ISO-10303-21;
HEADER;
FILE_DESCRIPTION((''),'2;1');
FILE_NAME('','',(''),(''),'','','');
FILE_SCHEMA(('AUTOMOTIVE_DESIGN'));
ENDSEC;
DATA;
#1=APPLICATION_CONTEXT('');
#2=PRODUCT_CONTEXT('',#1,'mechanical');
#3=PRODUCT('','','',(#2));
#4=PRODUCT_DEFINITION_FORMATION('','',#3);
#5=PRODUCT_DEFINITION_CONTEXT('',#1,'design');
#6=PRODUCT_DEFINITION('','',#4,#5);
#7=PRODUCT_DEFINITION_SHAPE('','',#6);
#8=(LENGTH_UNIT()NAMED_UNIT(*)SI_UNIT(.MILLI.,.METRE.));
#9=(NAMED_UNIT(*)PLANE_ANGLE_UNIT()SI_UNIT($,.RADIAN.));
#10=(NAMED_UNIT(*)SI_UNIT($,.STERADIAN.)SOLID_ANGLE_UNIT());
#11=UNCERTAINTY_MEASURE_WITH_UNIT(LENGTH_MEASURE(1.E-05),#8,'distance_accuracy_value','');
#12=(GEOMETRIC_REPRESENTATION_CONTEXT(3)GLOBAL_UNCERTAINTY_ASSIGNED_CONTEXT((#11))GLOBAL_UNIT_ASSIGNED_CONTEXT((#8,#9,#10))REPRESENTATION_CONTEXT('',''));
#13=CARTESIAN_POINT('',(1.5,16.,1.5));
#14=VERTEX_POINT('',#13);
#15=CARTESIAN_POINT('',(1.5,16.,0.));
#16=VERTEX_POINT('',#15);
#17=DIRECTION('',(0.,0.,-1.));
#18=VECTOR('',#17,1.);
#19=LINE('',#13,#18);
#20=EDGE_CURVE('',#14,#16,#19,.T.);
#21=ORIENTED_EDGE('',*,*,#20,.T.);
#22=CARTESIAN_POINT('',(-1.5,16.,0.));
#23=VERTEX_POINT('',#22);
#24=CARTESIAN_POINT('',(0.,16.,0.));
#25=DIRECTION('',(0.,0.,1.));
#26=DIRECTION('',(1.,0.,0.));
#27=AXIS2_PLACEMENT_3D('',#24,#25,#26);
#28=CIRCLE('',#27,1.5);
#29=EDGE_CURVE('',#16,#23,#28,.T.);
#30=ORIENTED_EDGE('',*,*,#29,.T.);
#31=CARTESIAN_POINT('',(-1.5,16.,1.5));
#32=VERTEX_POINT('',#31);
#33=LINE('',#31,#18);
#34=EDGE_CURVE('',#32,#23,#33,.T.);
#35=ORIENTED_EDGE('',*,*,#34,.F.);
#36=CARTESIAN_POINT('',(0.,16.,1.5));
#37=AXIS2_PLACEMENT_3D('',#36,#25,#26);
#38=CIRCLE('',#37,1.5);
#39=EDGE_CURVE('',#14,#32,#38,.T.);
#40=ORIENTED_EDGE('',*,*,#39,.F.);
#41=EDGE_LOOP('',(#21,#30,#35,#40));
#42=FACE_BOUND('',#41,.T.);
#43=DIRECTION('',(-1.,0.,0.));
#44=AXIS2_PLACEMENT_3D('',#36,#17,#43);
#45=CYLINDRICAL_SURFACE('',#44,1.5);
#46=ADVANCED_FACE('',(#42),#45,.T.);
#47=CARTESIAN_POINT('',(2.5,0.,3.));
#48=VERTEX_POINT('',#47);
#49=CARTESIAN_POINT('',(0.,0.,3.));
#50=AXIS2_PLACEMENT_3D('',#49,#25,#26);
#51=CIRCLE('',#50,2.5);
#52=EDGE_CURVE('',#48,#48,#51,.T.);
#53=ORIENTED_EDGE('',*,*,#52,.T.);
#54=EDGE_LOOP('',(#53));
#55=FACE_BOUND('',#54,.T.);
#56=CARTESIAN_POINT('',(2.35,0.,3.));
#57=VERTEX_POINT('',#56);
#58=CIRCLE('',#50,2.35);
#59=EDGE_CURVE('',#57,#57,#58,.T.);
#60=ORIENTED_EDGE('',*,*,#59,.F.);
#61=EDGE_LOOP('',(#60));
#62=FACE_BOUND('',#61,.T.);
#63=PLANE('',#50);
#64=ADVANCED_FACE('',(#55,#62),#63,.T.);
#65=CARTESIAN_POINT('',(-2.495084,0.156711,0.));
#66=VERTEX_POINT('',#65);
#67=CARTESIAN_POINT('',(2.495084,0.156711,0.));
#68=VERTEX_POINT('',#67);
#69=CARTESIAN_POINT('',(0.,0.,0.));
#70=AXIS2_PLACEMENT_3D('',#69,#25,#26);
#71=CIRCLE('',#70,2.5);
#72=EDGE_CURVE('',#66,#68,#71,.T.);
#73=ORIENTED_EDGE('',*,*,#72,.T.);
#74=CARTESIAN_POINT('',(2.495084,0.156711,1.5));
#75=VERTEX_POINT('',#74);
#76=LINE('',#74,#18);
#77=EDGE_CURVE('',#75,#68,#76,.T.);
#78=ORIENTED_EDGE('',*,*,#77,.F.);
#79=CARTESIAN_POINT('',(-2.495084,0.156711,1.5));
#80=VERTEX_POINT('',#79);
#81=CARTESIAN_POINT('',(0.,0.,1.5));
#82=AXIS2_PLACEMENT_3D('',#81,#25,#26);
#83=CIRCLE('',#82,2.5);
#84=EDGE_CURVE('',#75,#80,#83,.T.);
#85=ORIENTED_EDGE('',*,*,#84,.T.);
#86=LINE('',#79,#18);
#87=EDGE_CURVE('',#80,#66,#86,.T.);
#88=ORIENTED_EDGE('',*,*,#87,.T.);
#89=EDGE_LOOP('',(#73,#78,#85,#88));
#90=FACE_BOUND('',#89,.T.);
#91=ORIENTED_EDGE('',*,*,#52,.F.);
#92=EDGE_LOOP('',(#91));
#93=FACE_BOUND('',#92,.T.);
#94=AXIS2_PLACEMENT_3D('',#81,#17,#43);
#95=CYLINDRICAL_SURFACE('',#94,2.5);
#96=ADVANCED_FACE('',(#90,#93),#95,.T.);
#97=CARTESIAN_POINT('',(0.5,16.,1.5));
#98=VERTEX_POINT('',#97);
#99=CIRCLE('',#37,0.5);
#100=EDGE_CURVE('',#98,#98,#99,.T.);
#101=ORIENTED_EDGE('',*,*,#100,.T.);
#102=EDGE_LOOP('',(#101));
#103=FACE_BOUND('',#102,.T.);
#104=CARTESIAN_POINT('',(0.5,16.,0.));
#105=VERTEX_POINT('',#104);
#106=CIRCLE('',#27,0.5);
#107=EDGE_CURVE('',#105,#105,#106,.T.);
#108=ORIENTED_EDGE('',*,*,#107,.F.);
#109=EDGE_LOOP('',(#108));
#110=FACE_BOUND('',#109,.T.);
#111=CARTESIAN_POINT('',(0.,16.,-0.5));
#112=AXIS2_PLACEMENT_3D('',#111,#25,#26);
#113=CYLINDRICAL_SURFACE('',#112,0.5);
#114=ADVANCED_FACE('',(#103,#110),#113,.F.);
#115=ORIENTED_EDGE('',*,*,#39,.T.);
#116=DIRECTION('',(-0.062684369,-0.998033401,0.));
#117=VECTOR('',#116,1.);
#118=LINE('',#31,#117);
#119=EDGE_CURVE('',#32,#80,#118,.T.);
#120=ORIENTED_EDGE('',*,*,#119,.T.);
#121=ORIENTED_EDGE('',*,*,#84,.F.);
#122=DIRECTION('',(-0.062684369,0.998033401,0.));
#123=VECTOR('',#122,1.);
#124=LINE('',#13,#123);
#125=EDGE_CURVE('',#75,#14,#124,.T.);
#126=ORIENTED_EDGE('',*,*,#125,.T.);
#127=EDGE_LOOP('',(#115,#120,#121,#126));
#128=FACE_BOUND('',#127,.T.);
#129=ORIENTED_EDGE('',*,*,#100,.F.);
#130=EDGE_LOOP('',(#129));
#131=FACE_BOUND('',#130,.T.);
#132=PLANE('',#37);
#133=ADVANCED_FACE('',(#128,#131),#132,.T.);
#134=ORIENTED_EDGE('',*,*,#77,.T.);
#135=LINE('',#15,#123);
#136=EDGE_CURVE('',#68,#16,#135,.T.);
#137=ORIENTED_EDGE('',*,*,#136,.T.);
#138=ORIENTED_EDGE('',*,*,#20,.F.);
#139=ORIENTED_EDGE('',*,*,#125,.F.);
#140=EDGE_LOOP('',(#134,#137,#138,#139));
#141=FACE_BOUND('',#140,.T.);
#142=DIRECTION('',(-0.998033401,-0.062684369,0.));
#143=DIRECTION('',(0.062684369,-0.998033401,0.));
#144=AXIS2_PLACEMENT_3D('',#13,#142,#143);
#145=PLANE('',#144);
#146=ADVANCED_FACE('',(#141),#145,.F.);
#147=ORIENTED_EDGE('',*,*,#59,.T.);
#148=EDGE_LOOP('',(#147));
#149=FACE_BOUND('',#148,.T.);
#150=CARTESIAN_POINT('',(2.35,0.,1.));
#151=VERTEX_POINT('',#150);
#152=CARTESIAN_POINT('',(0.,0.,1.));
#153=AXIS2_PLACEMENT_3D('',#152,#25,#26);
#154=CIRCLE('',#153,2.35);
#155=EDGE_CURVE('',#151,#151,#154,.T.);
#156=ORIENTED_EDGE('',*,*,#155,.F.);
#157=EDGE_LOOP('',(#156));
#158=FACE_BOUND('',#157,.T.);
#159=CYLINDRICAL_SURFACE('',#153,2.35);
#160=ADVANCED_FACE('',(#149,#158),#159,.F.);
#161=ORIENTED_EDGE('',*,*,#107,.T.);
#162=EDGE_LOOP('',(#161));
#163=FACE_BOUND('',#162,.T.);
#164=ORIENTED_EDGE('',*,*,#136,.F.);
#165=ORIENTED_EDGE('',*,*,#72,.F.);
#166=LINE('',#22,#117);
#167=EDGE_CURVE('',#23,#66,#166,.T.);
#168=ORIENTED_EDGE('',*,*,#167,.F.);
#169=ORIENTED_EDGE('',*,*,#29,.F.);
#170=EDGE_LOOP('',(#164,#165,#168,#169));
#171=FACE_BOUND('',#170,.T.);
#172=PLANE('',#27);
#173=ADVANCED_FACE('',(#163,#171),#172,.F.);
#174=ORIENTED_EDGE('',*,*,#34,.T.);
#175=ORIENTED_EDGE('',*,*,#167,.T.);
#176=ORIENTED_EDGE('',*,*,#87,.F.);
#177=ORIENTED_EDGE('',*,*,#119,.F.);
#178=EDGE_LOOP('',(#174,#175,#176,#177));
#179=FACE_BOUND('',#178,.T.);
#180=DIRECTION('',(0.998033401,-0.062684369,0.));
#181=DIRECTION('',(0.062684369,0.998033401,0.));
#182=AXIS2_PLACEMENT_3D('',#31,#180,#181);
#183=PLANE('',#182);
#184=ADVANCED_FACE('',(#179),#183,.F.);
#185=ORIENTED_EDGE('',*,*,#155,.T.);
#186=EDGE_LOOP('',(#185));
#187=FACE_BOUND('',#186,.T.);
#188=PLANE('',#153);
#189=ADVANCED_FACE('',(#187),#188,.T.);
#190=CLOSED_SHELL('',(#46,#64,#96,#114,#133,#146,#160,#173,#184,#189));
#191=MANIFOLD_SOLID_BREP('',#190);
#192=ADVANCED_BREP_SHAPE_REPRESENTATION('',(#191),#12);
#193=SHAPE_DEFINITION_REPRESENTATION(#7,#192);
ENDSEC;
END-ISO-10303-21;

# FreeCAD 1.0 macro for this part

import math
import FreeCAD as App
import Part
import Sketcher
Q = App.Units.Quantity

doc = App.newDocument("Part")
body = doc.addObject("PartDesign::Body", "Body")

# Sketch on XY plane
sketch1 = body.newObject("Sketcher::SketchObject", "Sketch")
sketch1.AttachmentSupport = (doc.getObject("XY_Plane"), [""])
sketch1.MapMode = "FlatFace"
sketch1.addGeometry(Part.LineSegment(App.Vector(-1.5, 16, 0), App.Vector(-2.5, 0.2, 0)), False)
sketch1.addGeometry(Part.ArcOfCircle(Part.Circle(App.Vector(0, 0, 0), App.Vector(0, 0, 1), 2.5), math.radians(176), math.radians(364)), False)
sketch1.addGeometry(Part.LineSegment(App.Vector(2.5, 0.2, 0), App.Vector(1.5, 16, 0)), False)
sketch1.addGeometry(Part.ArcOfCircle(Part.Circle(App.Vector(0, 16, 0), App.Vector(0, 0, 1), 1.5), math.radians(0), math.radians(180)), False)
sketch1.addConstraint(Sketcher.Constraint("Tangent", 0, 2, 1, 1))
sketch1.addConstraint(Sketcher.Constraint("Tangent", 1, 2, 2, 1))
sketch1.addConstraint(Sketcher.Constraint("Coincident", 2, 2, 3, 1))
sketch1.addConstraint(Sketcher.Constraint("Coincident", 3, 2, 0, 1))
sketch1.addConstraint(Sketcher.Constraint("Coincident", 1, 3, -1, 1))
sketch1.addConstraint(Sketcher.Constraint("Symmetric", 2, 2, 3, 2, -2))
sketch1.addConstraint(Sketcher.Constraint("Horizontal", 3, 3, 2, 2))
sketch1.addConstraint(Sketcher.Constraint("Radius", 1, Q("2.5 mm")))
sketch1.addConstraint(Sketcher.Constraint("Radius", 3, Q("1.5 mm")))
sketch1.addConstraint(Sketcher.Constraint("DistanceY", -1, 1, 3, 3, Q("16 mm")))
pad1 = body.newObject("PartDesign::Pad", "Pad")
pad1.Profile = sketch1
pad1.Length = 1.5

# Sketch on XY plane
sketch2 = body.newObject("Sketcher::SketchObject", "Sketch001")
sketch2.AttachmentSupport = (doc.getObject("XY_Plane"), [""])
sketch2.MapMode = "FlatFace"
sketch2.AttachmentOffset = App.Placement(App.Vector(0, 0, 1.5), App.Rotation())
sketch2.addGeometry(Part.Circle(App.Vector(0, 0, 0), App.Vector(0, 0, 1), 2.5), False)
sketch2.addConstraint(Sketcher.Constraint("Coincident", 0, 3, -1, 1))
sketch2.addConstraint(Sketcher.Constraint("Diameter", 0, Q("5 mm")))
pad2 = body.newObject("PartDesign::Pad", "Pad001")
pad2.Profile = sketch2
pad2.Length = 1.5

# Sketch on XY plane
sketch3 = body.newObject("Sketcher::SketchObject", "Sketch002")
sketch3.AttachmentSupport = (doc.getObject("XY_Plane"), [""])
sketch3.MapMode = "FlatFace"
sketch3.AttachmentOffset = App.Placement(App.Vector(0, 0, 3), App.Rotation())
sketch3.addGeometry(Part.Circle(App.Vector(0, 0, 0), App.Vector(0, 0, 1), 2.4), False)
sketch3.addConstraint(Sketcher.Constraint("Coincident", 0, 3, -1, 1))
sketch3.addConstraint(Sketcher.Constraint("Diameter", 0, Q("4.7 mm")))
pocket1 = body.newObject("PartDesign::Pocket", "Pocket")
pocket1.Profile = sketch3
pocket1.Length = 2

# Sketch on XY plane
sketch4 = body.newObject("Sketcher::SketchObject", "Sketch003")
sketch4.AttachmentSupport = (doc.getObject("XY_Plane"), [""])
sketch4.MapMode = "FlatFace"
sketch4.AttachmentOffset = App.Placement(App.Vector(0, 0, 1.5), App.Rotation())
sketch4.addGeometry(Part.Circle(App.Vector(0, 16, 0), App.Vector(0, 0, 1), 0.5), False)
sketch4.addConstraint(Sketcher.Constraint("PointOnObject", 0, 3, -2))
sketch4.addConstraint(Sketcher.Constraint("Diameter", 0, Q("1 mm")))
sketch4.addConstraint(Sketcher.Constraint("DistanceY", -1, 1, 0, 3, Q("16 mm")))
pocket2 = body.newObject("PartDesign::Pocket", "Pocket001")
pocket2.Profile = sketch4
pocket2.Length = 2

doc.recompute()
